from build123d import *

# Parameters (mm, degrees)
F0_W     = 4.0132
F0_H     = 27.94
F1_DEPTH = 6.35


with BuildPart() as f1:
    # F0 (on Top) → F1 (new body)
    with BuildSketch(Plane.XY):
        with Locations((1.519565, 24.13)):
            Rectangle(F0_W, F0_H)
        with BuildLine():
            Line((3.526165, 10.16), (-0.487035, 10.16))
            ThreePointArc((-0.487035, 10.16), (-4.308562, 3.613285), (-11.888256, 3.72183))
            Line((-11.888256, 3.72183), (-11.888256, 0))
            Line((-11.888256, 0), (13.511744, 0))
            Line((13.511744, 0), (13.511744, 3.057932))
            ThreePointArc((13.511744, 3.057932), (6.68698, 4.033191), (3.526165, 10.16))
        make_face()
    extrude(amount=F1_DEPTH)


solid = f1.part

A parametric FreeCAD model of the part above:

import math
import FreeCAD as App
import Part
import Sketcher

V = App.Vector
Q = App.Units.Quantity

doc = App.newDocument("Part")
body = doc.addObject("PartDesign::Body", "Body")

# Sketch on XY plane
sketch1 = body.newObject("Sketcher::SketchObject", "Sketch")
sketch1.AttachmentSupport = (doc.getObject("XY_Plane"), [""])
sketch1.MapMode = "FlatFace"
sketch1.addGeometry([
    Part.LineSegment(V(-0.5, 38.1, 0), V(-0.5, 10.2, 0)),  # 0
    Part.ArcOfCircle(Part.Circle(V(-8, 10.2, 0), V(0, 0, 1), 7.5), math.radians(-121), math.radians(0)),  # 1
    Part.LineSegment(V(-11.9, 3.7, 0), V(-11.9, 0, 0)),  # 2
    Part.LineSegment(V(-11.9, 0, 0), V(13.5, 0, 0)),  # 3
    Part.LineSegment(V(13.5, 0, 0), V(13.5, 3.1, 0)),  # 4
    Part.ArcOfCircle(Part.Circle(V(11, 10.2, 0), V(0, 0, 1), 7.5), math.radians(-180), math.radians(-71)),  # 5
    Part.LineSegment(V(3.5, 10.2, 0), V(3.5, 38.1, 0)),  # 6
    Part.LineSegment(V(3.5, 38.1, 0), V(-0.5, 38.1, 0)),  # 7
], False)
sketch1.addConstraint([
    Sketcher.Constraint("Tangent", 0, 2, 1, 2),
    Sketcher.Constraint("Coincident", 1, 1, 2, 1),
    Sketcher.Constraint("Coincident", 2, 2, 3, 1),
    Sketcher.Constraint("Coincident", 3, 2, 4, 1),
    Sketcher.Constraint("Coincident", 4, 2, 5, 2),
    Sketcher.Constraint("Tangent", 5, 1, 6, 1),
    Sketcher.Constraint("Coincident", 6, 2, 7, 1),
    Sketcher.Constraint("Coincident", 7, 2, 0, 1),
    Sketcher.Constraint("Vertical", 0),
    Sketcher.Constraint("Vertical", 2),
    Sketcher.Constraint("Horizontal", 3),
    Sketcher.Constraint("Vertical", 4),
    Sketcher.Constraint("Vertical", 6),
    Sketcher.Constraint("Horizontal", 7),
    Sketcher.Constraint("Equal", 1, 5),
    Sketcher.Constraint("PointOnObject", 2, 2, -1),
    Sketcher.Constraint("Horizontal", 1, 3, 5, 3),
    Sketcher.Constraint("DistanceX", 3, 1, 3, 2, Q("1 in")),
    Sketcher.Constraint("DistanceY", 0, 2, 0, 1, Q("1.1 in")),
    Sketcher.Constraint("Radius", 1, Q("0.296 in")),
    Sketcher.Constraint("DistanceY", -1, 1, 1, 3, Q("0.4 in")),
    Sketcher.Constraint("DistanceX", 7, 2, 7, 1, Q("0.158 in")),
    Sketcher.Constraint("DistanceY", 2, 2, 2, 1, 3.72183),
    Sketcher.Constraint("DistanceX", 1, 3, -1, 1, 8.005434),
])
pad1 = body.newObject("PartDesign::Pad", "Pad")
pad1.Profile = sketch1
pad1.Length = Q("0.25 in")

doc.recompute()
